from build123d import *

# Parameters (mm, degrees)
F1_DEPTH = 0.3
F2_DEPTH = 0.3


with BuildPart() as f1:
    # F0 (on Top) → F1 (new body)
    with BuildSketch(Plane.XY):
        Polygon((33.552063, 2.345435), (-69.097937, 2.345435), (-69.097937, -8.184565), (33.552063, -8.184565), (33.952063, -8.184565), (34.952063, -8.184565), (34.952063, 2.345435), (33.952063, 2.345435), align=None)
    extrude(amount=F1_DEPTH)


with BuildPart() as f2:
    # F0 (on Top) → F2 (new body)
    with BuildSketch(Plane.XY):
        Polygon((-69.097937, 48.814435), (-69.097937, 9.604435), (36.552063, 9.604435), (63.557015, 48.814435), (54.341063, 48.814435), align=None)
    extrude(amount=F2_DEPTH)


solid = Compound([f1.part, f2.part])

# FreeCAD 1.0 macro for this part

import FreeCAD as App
import Part
import Sketcher

doc = App.newDocument("Part")
params = doc.addObject("Spreadsheet::Sheet", "Params")
for row, (alias, value) in enumerate([
    ("sketch1_width", "104.05 mm"),
    ("sketch1_height", "10.53 mm"),
    ("pad1_length", "0.3 mm"),
    ("sketch2_width", "105.65 mm"),
    ("sketch2_height", "39.21 mm"),
    ("pad2_length", "0.3 mm"),
], start=1):
    params.set(f"A{row}", alias)
    params.set(f"B{row}", "=" + value)
    params.setAlias(f"B{row}", alias)

body = doc.addObject("PartDesign::Body", "Body")

# Sketch on XY plane
sketch1 = body.newObject("Sketcher::SketchObject", "Sketch")
sketch1.AttachmentSupport = (doc.getObject("XY_Plane"), [""])
sketch1.MapMode = "FlatFace"
sketch1.addGeometry([
    Part.LineSegment(App.Vector(-69.097937, 2.345435, 0), App.Vector(-69.097937, -8.184565, 0)),
    Part.LineSegment(App.Vector(-69.097937, -8.184565, 0), App.Vector(34.952063, -8.184565, 0)),
    Part.LineSegment(App.Vector(34.952063, -8.184565, 0), App.Vector(34.952063, 2.345435, 0)),
    Part.LineSegment(App.Vector(34.952063, 2.345435, 0), App.Vector(-69.097937, 2.345435, 0)),
], False)
sketch1.addConstraint([
    Sketcher.Constraint("Coincident", 0, 2, 1, 1),
    Sketcher.Constraint("Coincident", 1, 2, 2, 1),
    Sketcher.Constraint("Coincident", 2, 2, 3, 1),
    Sketcher.Constraint("Coincident", 3, 2, 0, 1),
    Sketcher.Constraint("Vertical", 0),
    Sketcher.Constraint("Horizontal", 1),
    Sketcher.Constraint("Vertical", 2),
    Sketcher.Constraint("Horizontal", 3),
    Sketcher.Constraint("DistanceX", 1, 1, 1, 2, 104.05),
    Sketcher.Constraint("DistanceY", 0, 2, 0, 1, 10.53),
    Sketcher.Constraint("DistanceX", 0, 2, -1, 1, 69.097937),
    Sketcher.Constraint("DistanceY", 0, 2, -1, 1, 8.184565),
])
sketch1.setExpression("Constraints[8]", "Params.sketch1_width")
sketch1.setExpression("Constraints[9]", "Params.sketch1_height")
pad1 = body.newObject("PartDesign::Pad", "Pad")
pad1.Profile = sketch1
pad1.setExpression("Length", "Params.pad1_length")
body2 = doc.addObject("PartDesign::Body", "Body001")

# Sketch on XY plane
sketch2 = body2.newObject("Sketcher::SketchObject", "Sketch001")
sketch2.AttachmentSupport = (doc.getObject("XY_Plane001"), [""])
sketch2.MapMode = "FlatFace"
sketch2.addGeometry([
    Part.LineSegment(App.Vector(-69.097937, 48.814435, 0), App.Vector(-69.097937, 9.604435, 0)),
    Part.LineSegment(App.Vector(-69.097937, 9.604435, 0), App.Vector(36.552063, 9.604435, 0)),
    Part.LineSegment(App.Vector(36.552063, 9.604435, 0), App.Vector(63.557015, 48.814435, 0)),
    Part.LineSegment(App.Vector(63.557015, 48.814435, 0), App.Vector(-69.097937, 48.814435, 0)),
], False)
sketch2.addConstraint([
    Sketcher.Constraint("Coincident", 0, 2, 1, 1),
    Sketcher.Constraint("Coincident", 1, 2, 2, 1),
    Sketcher.Constraint("Coincident", 2, 2, 3, 1),
    Sketcher.Constraint("Coincident", 3, 2, 0, 1),
    Sketcher.Constraint("Vertical", 0),
    Sketcher.Constraint("Horizontal", 1),
    Sketcher.Constraint("Horizontal", 3),
    Sketcher.Constraint("DistanceX", 1, 1, 1, 2, 105.65),
    Sketcher.Constraint("DistanceY", 0, 2, 0, 1, 39.21),
    Sketcher.Constraint("DistanceX", 3, 2, 3, 1, 132.654952),
    Sketcher.Constraint("DistanceX", 0, 2, -1, 1, 69.097937),
    Sketcher.Constraint("DistanceY", -1, 1, 0, 2, 9.604435),
])
sketch2.setExpression("Constraints[7]", "Params.sketch2_width")
sketch2.setExpression("Constraints[8]", "Params.sketch2_height")
pad2 = body2.newObject("PartDesign::Pad", "Pad001")
pad2.Profile = sketch2
pad2.setExpression("Length", "Params.pad2_length")

doc.recompute()
